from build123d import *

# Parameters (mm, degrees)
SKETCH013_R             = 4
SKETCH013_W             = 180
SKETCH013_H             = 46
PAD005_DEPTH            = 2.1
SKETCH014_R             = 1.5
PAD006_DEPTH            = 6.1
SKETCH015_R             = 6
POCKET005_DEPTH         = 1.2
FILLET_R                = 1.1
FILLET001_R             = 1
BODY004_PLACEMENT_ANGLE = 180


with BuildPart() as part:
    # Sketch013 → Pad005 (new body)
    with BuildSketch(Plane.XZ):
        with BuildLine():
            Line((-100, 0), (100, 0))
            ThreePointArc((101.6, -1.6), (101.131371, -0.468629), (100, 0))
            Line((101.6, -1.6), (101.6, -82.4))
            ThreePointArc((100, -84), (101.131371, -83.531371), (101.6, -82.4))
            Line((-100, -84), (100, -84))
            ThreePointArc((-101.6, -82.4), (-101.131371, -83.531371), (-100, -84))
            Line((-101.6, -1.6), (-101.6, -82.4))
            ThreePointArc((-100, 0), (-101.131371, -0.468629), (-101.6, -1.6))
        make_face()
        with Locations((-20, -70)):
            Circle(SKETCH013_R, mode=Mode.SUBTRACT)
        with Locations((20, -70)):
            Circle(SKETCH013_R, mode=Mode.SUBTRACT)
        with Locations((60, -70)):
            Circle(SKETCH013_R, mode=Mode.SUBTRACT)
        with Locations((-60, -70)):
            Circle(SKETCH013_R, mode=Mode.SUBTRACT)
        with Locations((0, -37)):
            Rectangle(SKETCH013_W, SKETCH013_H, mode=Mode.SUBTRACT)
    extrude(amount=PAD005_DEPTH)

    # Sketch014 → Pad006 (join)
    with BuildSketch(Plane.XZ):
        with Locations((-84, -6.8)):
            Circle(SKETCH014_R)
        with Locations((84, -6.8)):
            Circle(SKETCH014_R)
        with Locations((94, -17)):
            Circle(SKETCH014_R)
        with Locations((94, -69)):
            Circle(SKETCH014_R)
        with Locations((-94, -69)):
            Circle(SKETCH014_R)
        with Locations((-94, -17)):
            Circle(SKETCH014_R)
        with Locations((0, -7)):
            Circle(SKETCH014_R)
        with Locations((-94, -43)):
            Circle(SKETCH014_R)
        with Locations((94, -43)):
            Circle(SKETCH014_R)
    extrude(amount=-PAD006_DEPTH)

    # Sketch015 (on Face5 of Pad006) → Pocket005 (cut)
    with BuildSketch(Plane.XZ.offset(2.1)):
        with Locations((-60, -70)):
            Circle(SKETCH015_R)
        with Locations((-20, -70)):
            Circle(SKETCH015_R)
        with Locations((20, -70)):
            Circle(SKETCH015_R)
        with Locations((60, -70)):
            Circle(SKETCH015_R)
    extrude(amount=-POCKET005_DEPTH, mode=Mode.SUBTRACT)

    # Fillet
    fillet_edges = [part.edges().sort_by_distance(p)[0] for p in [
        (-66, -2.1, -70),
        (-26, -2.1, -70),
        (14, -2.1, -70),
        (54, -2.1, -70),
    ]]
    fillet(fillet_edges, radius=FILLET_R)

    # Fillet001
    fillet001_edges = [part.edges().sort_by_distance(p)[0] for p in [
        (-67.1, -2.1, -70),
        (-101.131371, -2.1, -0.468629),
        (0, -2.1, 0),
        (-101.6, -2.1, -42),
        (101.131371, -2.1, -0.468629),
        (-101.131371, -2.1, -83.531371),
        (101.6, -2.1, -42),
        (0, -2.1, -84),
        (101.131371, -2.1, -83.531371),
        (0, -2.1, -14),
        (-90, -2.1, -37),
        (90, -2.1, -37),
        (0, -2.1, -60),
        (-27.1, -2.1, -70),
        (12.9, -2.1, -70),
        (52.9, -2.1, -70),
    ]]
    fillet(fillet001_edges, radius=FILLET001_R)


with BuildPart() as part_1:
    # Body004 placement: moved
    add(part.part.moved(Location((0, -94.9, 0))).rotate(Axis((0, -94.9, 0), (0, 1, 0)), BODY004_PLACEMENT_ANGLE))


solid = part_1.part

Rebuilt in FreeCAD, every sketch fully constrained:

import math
import FreeCAD as App
import Part
import Sketcher
Q = App.Units.Quantity


def edges_at(feature, points):
    """Names of the edges that pass closest to the given points."""
    edges = feature.Shape.Edges
    near = lambda p: min(range(len(edges)), key=lambda i: edges[i].distToShape(Part.Vertex(*p))[0])
    return sorted({f"Edge{near(p) + 1}" for p in points})

doc = App.newDocument("Part")
params = doc.addObject("Spreadsheet::Sheet", "Params")
for row, (alias, value) in enumerate([
    ("sketch1_diameter", "8 mm"),
    ("sketch1_radius", "1.599999 mm"),
    ("sketch1_width", "200 mm"),
    ("sketch1_width2", "180 mm"),
    ("sketch1_height", "46 mm"),
    ("pad1_length", "2.1 mm"),
    ("sketch2_diameter", "3 mm"),
    ("pad2_length", "6.1 mm"),
    ("sketch3_diameter", "12 mm"),
    ("pocket1_length", "1.2 mm"),
    ("fillet_radius", "1.1 mm"),
    ("fillet2_radius", "1 mm"),
], start=1):
    params.set(f"A{row}", alias)
    params.set(f"B{row}", "=" + value)
    params.setAlias(f"B{row}", alias)

body = doc.addObject("PartDesign::Body", "Body")

sketch1 = body.newObject("Sketcher::SketchObject", "Sketch")
sketch1.AttachmentSupport = (doc.getObject("XZ_Plane"), [""])
sketch1.MapMode = "FlatFace"
sketch1.addGeometry(Part.LineSegment(App.Vector(100, 0, 0), App.Vector(-100, 0, 0)), False)
sketch1.addGeometry(Part.ArcOfCircle(Part.Circle(App.Vector(-100.000001, -1.599999, 0), App.Vector(0, 0, 1), 1.599999), math.radians(89.999982), math.radians(180.000018)), False)
sketch1.addGeometry(Part.LineSegment(App.Vector(-101.6, -1.6, 0), App.Vector(-101.6, -82.4, 0)), False)
sketch1.addGeometry(Part.ArcOfCircle(Part.Circle(App.Vector(-100.000001, -82.400001, 0), App.Vector(0, 0, 1), 1.599999), math.radians(179.999982), math.radians(270.000018)), False)
sketch1.addGeometry(Part.LineSegment(App.Vector(-100, -84, 0), App.Vector(100, -84, 0)), False)
sketch1.addGeometry(Part.ArcOfCircle(Part.Circle(App.Vector(100.000001, -82.400001, 0), App.Vector(0, 0, 1), 1.599999), math.radians(-90.000018), math.radians(0.000018)), False)
sketch1.addGeometry(Part.LineSegment(App.Vector(101.6, -82.4, 0), App.Vector(101.6, -1.6, 0)), False)
sketch1.addGeometry(Part.ArcOfCircle(Part.Circle(App.Vector(100.000001, -1.599999, 0), App.Vector(0, 0, 1), 1.599999), math.radians(-0.000018), math.radians(90.000018)), False)
sketch1.addGeometry(Part.Circle(App.Vector(60, -70, 0), App.Vector(0, 0, 1), 4), False)
sketch1.addGeometry(Part.Circle(App.Vector(20, -70, 0), App.Vector(0, 0, 1), 4), False)
sketch1.addGeometry(Part.Circle(App.Vector(-20, -70, 0), App.Vector(0, 0, 1), 4), False)
sketch1.addGeometry(Part.Circle(App.Vector(-60, -70, 0), App.Vector(0, 0, 1), 4), False)
sketch1.addGeometry(Part.LineSegment(App.Vector(-90, -60, 0), App.Vector(-90, -14, 0)), False)
sketch1.addGeometry(Part.LineSegment(App.Vector(-90, -14, 0), App.Vector(90, -14, 0)), False)
sketch1.addGeometry(Part.LineSegment(App.Vector(90, -14, 0), App.Vector(90, -60, 0)), False)
sketch1.addGeometry(Part.LineSegment(App.Vector(90, -60, 0), App.Vector(-90, -60, 0)), False)
sketch1.addConstraint(Sketcher.Constraint("Tangent", 0, 2, 1, 1))
sketch1.addConstraint(Sketcher.Constraint("Tangent", 1, 2, 2, 1))
sketch1.addConstraint(Sketcher.Constraint("Tangent", 2, 2, 3, 1))
sketch1.addConstraint(Sketcher.Constraint("Tangent", 3, 2, 4, 1))
sketch1.addConstraint(Sketcher.Constraint("Tangent", 4, 2, 5, 1))
sketch1.addConstraint(Sketcher.Constraint("Tangent", 5, 2, 6, 1))
sketch1.addConstraint(Sketcher.Constraint("Tangent", 6, 2, 7, 1))
sketch1.addConstraint(Sketcher.Constraint("Tangent", 7, 2, 0, 1))
sketch1.addConstraint(Sketcher.Constraint("Coincident", 12, 2, 13, 1))
sketch1.addConstraint(Sketcher.Constraint("Coincident", 13, 2, 14, 1))
sketch1.addConstraint(Sketcher.Constraint("Coincident", 14, 2, 15, 1))
sketch1.addConstraint(Sketcher.Constraint("Coincident", 15, 2, 12, 1))
sketch1.addConstraint(Sketcher.Constraint("Horizontal", 0))
sketch1.addConstraint(Sketcher.Constraint("Vertical", 2))
sketch1.addConstraint(Sketcher.Constraint("Horizontal", 4))
sketch1.addConstraint(Sketcher.Constraint("Vertical", 6))
sketch1.addConstraint(Sketcher.Constraint("Vertical", 12))
sketch1.addConstraint(Sketcher.Constraint("Horizontal", 13))
sketch1.addConstraint(Sketcher.Constraint("Vertical", 14))
sketch1.addConstraint(Sketcher.Constraint("Horizontal", 15))
sketch1.addConstraint(Sketcher.Constraint("Equal", 1, 3))
sketch1.addConstraint(Sketcher.Constraint("Equal", 3, 5))
sketch1.addConstraint(Sketcher.Constraint("Equal", 5, 7))
sketch1.addConstraint(Sketcher.Constraint("Equal", 8, 9))
sketch1.addConstraint(Sketcher.Constraint("Equal", 9, 10))
sketch1.addConstraint(Sketcher.Constraint("Equal", 10, 11))
sketch1.addConstraint(Sketcher.Constraint("Symmetric", 0, 2, 7, 2, -1, 1))
sketch1.addConstraint(Sketcher.Constraint("Symmetric", 9, 3, 10, 3, -2))
sketch1.addConstraint(Sketcher.Constraint("Symmetric", 8, 3, 11, 3, -2))
sketch1.addConstraint(Sketcher.Constraint("Horizontal", 8, 3, 9, 3))
sketch1.addConstraint(Sketcher.Constraint("Diameter", 8, Q("8 mm")))
sketch1.addConstraint(Sketcher.Constraint("Radius", 1, Q("1.599999 mm")))
sketch1.addConstraint(Sketcher.Constraint("DistanceX", 0, 2, 0, 1, Q("200 mm")))
sketch1.addConstraint(Sketcher.Constraint("DistanceX", 13, 1, 13, 2, Q("180 mm")))
sketch1.addConstraint(Sketcher.Constraint("DistanceY", 12, 1, 12, 2, Q("46 mm")))
sketch1.addConstraint(Sketcher.Constraint("DistanceY", 2, 2, 2, 1, Q("80.8 mm")))
sketch1.addConstraint(Sketcher.Constraint("DistanceX", -1, 1, 8, 3, Q("60 mm")))
sketch1.addConstraint(Sketcher.Constraint("DistanceY", 8, 3, -1, 1, Q("70 mm")))
sketch1.addConstraint(Sketcher.Constraint("DistanceX", -1, 1, 9, 3, Q("20 mm")))
sketch1.addConstraint(Sketcher.Constraint("DistanceX", 12, 2, -1, 1, Q("90 mm")))
sketch1.addConstraint(Sketcher.Constraint("DistanceY", 12, 2, -1, 1, Q("14 mm")))
sketch1.setExpression("Constraints[30]", "Params.sketch1_diameter")
sketch1.setExpression("Constraints[31]", "Params.sketch1_radius")
sketch1.setExpression("Constraints[32]", "Params.sketch1_width")
sketch1.setExpression("Constraints[33]", "Params.sketch1_width2")
sketch1.setExpression("Constraints[34]", "Params.sketch1_height")
pad1 = body.newObject("PartDesign::Pad", "Pad")
pad1.Profile = sketch1
pad1.setExpression("Length", "Params.pad1_length")

sketch2 = body.newObject("Sketcher::SketchObject", "Sketch001")
sketch2.AttachmentSupport = (doc.getObject("XZ_Plane"), [""])
sketch2.MapMode = "FlatFace"
sketch2.addGeometry(Part.Circle(App.Vector(-84, -6.8, 0), App.Vector(0, 0, 1), 1.5), False)
sketch2.addGeometry(Part.Circle(App.Vector(84, -6.8, 0), App.Vector(0, 0, 1), 1.5), False)
sketch2.addGeometry(Part.Circle(App.Vector(94, -17, 0), App.Vector(0, 0, 1), 1.5), False)
sketch2.addGeometry(Part.Circle(App.Vector(94, -69, 0), App.Vector(0, 0, 1), 1.5), False)
sketch2.addGeometry(Part.Circle(App.Vector(-94, -69, 0), App.Vector(0, 0, 1), 1.5), False)
sketch2.addGeometry(Part.Circle(App.Vector(-94, -17, 0), App.Vector(0, 0, 1), 1.5), False)
sketch2.addGeometry(Part.Circle(App.Vector(0, -7, 0), App.Vector(0, 0, 1), 1.5), False)
sketch2.addGeometry(Part.Circle(App.Vector(-94, -43, 0), App.Vector(0, 0, 1), 1.5), False)
sketch2.addGeometry(Part.Circle(App.Vector(94, -43, 0), App.Vector(0, 0, 1), 1.5), False)
sketch2.addConstraint(Sketcher.Constraint("Equal", 0, 1))
sketch2.addConstraint(Sketcher.Constraint("Equal", 1, 2))
sketch2.addConstraint(Sketcher.Constraint("Equal", 2, 3))
sketch2.addConstraint(Sketcher.Constraint("Equal", 3, 4))
sketch2.addConstraint(Sketcher.Constraint("Equal", 4, 5))
sketch2.addConstraint(Sketcher.Constraint("Equal", 5, 6))
sketch2.addConstraint(Sketcher.Constraint("Equal", 6, 7))
sketch2.addConstraint(Sketcher.Constraint("Equal", 7, 8))
sketch2.addConstraint(Sketcher.Constraint("Symmetric", 0, 3, 1, 3, -2))
sketch2.addConstraint(Sketcher.Constraint("Symmetric", 3, 3, 4, 3, -2))
sketch2.addConstraint(Sketcher.Constraint("Symmetric", 2, 3, 5, 3, -2))
sketch2.addConstraint(Sketcher.Constraint("Symmetric", 7, 3, 8, 3, -2))
sketch2.addConstraint(Sketcher.Constraint("PointOnObject", 6, 3, -2))
sketch2.addConstraint(Sketcher.Constraint("Vertical", 2, 3, 3, 3))
sketch2.addConstraint(Sketcher.Constraint("Vertical", 5, 3, 7, 3))
sketch2.addConstraint(Sketcher.Constraint("Diameter", 0, Q("3 mm")))
sketch2.addConstraint(Sketcher.Constraint("DistanceX", 0, 3, -1, 1, Q("84 mm")))
sketch2.addConstraint(Sketcher.Constraint("DistanceX", -1, 1, 2, 3, Q("94 mm")))
sketch2.addConstraint(Sketcher.Constraint("DistanceY", 2, 3, -1, 1, Q("17 mm")))
sketch2.addConstraint(Sketcher.Constraint("DistanceY", 3, 3, -1, 1, Q("69 mm")))
sketch2.addConstraint(Sketcher.Constraint("DistanceY", 6, 3, -1, 1, Q("7 mm")))
sketch2.addConstraint(Sketcher.Constraint("DistanceY", 7, 3, -1, 1, Q("43 mm")))
sketch2.addConstraint(Sketcher.Constraint("DistanceY", 0, 3, -1, 1, Q("6.8 mm")))
sketch2.setExpression("Constraints[15]", "Params.sketch2_diameter")
pad2 = body.newObject("PartDesign::Pad", "Pad001")
pad2.Profile = sketch2
pad2.setExpression("Length", "Params.pad2_length")
pad2.Reversed = True

sketch3 = body.newObject("Sketcher::SketchObject", "Sketch002")
sketch3.AttachmentSupport = (doc.getObject("XZ_Plane"), [""])
sketch3.MapMode = "FlatFace"
sketch3.AttachmentOffset = App.Placement(App.Vector(0, 0, 2.1), App.Rotation())
sketch3.addGeometry(Part.Circle(App.Vector(-60, -70, 0), App.Vector(0, 0, 1), 6), False)
sketch3.addGeometry(Part.Circle(App.Vector(-20, -70, 0), App.Vector(0, 0, 1), 6), False)
sketch3.addGeometry(Part.Circle(App.Vector(20, -70, 0), App.Vector(0, 0, 1), 6), False)
sketch3.addGeometry(Part.Circle(App.Vector(60, -70, 0), App.Vector(0, 0, 1), 6), False)
sketch3.addConstraint(Sketcher.Constraint("Equal", 0, 1))
sketch3.addConstraint(Sketcher.Constraint("Equal", 1, 2))
sketch3.addConstraint(Sketcher.Constraint("Equal", 2, 3))
sketch3.addConstraint(Sketcher.Constraint("Symmetric", 1, 3, 2, 3, -2))
sketch3.addConstraint(Sketcher.Constraint("Symmetric", 0, 3, 3, 3, -2))
sketch3.addConstraint(Sketcher.Constraint("Horizontal", 0, 3, 1, 3))
sketch3.addConstraint(Sketcher.Constraint("Diameter", 0, Q("12 mm")))
sketch3.addConstraint(Sketcher.Constraint("DistanceX", 0, 3, -1, 1, Q("60 mm")))
sketch3.addConstraint(Sketcher.Constraint("DistanceY", 0, 3, -1, 1, Q("70 mm")))
sketch3.addConstraint(Sketcher.Constraint("DistanceX", 1, 3, -1, 1, Q("20 mm")))
sketch3.setExpression("Constraints[6]", "Params.sketch3_diameter")
pocket1 = body.newObject("PartDesign::Pocket", "Pocket")
pocket1.Profile = sketch3
pocket1.setExpression("Length", "Params.pocket1_length")
doc.recompute()

fillet = body.newObject("PartDesign::Fillet", "Fillet")
fillet.Base = (pocket1, edges_at(pocket1, [
    (-66, -2.1, -70),
    (-26, -2.1, -70),
    (14, -2.1, -70),
    (54, -2.1, -70),
]))
fillet.setExpression("Radius", "Params.fillet_radius")
doc.recompute()

fillet2 = body.newObject("PartDesign::Fillet", "Fillet001")
fillet2.Base = (fillet, edges_at(fillet, [
    (-67.1, -2.1, -70),
    (-101.131, -2.1, -0.469),
    (0, -2.1, 0),
    (-101.6, -2.1, -42),
    (101.131, -2.1, -0.469),
    (-101.131, -2.1, -83.531),
    (101.6, -2.1, -42),
    (0, -2.1, -84),
    (101.131, -2.1, -83.531),
    (0, -2.1, -14),
    (-90, -2.1, -37),
    (90, -2.1, -37),
    (0, -2.1, -60),
    (-27.1, -2.1, -70),
    (12.9, -2.1, -70),
    (52.9, -2.1, -70),
]))
fillet2.setExpression("Radius", "Params.fillet2_radius")
body2 = doc.addObject("PartDesign::Body", "Body001")
doc.recompute()

body.Placement = App.Placement(App.Vector(0, -94.9, 0), App.Rotation(App.Vector(0, 1, 0), 180))
boolean = body2.newObject("PartDesign::Boolean", "Boolean")
boolean.Type = "Fuse"
boolean.addObjects([body])

doc.recompute()
